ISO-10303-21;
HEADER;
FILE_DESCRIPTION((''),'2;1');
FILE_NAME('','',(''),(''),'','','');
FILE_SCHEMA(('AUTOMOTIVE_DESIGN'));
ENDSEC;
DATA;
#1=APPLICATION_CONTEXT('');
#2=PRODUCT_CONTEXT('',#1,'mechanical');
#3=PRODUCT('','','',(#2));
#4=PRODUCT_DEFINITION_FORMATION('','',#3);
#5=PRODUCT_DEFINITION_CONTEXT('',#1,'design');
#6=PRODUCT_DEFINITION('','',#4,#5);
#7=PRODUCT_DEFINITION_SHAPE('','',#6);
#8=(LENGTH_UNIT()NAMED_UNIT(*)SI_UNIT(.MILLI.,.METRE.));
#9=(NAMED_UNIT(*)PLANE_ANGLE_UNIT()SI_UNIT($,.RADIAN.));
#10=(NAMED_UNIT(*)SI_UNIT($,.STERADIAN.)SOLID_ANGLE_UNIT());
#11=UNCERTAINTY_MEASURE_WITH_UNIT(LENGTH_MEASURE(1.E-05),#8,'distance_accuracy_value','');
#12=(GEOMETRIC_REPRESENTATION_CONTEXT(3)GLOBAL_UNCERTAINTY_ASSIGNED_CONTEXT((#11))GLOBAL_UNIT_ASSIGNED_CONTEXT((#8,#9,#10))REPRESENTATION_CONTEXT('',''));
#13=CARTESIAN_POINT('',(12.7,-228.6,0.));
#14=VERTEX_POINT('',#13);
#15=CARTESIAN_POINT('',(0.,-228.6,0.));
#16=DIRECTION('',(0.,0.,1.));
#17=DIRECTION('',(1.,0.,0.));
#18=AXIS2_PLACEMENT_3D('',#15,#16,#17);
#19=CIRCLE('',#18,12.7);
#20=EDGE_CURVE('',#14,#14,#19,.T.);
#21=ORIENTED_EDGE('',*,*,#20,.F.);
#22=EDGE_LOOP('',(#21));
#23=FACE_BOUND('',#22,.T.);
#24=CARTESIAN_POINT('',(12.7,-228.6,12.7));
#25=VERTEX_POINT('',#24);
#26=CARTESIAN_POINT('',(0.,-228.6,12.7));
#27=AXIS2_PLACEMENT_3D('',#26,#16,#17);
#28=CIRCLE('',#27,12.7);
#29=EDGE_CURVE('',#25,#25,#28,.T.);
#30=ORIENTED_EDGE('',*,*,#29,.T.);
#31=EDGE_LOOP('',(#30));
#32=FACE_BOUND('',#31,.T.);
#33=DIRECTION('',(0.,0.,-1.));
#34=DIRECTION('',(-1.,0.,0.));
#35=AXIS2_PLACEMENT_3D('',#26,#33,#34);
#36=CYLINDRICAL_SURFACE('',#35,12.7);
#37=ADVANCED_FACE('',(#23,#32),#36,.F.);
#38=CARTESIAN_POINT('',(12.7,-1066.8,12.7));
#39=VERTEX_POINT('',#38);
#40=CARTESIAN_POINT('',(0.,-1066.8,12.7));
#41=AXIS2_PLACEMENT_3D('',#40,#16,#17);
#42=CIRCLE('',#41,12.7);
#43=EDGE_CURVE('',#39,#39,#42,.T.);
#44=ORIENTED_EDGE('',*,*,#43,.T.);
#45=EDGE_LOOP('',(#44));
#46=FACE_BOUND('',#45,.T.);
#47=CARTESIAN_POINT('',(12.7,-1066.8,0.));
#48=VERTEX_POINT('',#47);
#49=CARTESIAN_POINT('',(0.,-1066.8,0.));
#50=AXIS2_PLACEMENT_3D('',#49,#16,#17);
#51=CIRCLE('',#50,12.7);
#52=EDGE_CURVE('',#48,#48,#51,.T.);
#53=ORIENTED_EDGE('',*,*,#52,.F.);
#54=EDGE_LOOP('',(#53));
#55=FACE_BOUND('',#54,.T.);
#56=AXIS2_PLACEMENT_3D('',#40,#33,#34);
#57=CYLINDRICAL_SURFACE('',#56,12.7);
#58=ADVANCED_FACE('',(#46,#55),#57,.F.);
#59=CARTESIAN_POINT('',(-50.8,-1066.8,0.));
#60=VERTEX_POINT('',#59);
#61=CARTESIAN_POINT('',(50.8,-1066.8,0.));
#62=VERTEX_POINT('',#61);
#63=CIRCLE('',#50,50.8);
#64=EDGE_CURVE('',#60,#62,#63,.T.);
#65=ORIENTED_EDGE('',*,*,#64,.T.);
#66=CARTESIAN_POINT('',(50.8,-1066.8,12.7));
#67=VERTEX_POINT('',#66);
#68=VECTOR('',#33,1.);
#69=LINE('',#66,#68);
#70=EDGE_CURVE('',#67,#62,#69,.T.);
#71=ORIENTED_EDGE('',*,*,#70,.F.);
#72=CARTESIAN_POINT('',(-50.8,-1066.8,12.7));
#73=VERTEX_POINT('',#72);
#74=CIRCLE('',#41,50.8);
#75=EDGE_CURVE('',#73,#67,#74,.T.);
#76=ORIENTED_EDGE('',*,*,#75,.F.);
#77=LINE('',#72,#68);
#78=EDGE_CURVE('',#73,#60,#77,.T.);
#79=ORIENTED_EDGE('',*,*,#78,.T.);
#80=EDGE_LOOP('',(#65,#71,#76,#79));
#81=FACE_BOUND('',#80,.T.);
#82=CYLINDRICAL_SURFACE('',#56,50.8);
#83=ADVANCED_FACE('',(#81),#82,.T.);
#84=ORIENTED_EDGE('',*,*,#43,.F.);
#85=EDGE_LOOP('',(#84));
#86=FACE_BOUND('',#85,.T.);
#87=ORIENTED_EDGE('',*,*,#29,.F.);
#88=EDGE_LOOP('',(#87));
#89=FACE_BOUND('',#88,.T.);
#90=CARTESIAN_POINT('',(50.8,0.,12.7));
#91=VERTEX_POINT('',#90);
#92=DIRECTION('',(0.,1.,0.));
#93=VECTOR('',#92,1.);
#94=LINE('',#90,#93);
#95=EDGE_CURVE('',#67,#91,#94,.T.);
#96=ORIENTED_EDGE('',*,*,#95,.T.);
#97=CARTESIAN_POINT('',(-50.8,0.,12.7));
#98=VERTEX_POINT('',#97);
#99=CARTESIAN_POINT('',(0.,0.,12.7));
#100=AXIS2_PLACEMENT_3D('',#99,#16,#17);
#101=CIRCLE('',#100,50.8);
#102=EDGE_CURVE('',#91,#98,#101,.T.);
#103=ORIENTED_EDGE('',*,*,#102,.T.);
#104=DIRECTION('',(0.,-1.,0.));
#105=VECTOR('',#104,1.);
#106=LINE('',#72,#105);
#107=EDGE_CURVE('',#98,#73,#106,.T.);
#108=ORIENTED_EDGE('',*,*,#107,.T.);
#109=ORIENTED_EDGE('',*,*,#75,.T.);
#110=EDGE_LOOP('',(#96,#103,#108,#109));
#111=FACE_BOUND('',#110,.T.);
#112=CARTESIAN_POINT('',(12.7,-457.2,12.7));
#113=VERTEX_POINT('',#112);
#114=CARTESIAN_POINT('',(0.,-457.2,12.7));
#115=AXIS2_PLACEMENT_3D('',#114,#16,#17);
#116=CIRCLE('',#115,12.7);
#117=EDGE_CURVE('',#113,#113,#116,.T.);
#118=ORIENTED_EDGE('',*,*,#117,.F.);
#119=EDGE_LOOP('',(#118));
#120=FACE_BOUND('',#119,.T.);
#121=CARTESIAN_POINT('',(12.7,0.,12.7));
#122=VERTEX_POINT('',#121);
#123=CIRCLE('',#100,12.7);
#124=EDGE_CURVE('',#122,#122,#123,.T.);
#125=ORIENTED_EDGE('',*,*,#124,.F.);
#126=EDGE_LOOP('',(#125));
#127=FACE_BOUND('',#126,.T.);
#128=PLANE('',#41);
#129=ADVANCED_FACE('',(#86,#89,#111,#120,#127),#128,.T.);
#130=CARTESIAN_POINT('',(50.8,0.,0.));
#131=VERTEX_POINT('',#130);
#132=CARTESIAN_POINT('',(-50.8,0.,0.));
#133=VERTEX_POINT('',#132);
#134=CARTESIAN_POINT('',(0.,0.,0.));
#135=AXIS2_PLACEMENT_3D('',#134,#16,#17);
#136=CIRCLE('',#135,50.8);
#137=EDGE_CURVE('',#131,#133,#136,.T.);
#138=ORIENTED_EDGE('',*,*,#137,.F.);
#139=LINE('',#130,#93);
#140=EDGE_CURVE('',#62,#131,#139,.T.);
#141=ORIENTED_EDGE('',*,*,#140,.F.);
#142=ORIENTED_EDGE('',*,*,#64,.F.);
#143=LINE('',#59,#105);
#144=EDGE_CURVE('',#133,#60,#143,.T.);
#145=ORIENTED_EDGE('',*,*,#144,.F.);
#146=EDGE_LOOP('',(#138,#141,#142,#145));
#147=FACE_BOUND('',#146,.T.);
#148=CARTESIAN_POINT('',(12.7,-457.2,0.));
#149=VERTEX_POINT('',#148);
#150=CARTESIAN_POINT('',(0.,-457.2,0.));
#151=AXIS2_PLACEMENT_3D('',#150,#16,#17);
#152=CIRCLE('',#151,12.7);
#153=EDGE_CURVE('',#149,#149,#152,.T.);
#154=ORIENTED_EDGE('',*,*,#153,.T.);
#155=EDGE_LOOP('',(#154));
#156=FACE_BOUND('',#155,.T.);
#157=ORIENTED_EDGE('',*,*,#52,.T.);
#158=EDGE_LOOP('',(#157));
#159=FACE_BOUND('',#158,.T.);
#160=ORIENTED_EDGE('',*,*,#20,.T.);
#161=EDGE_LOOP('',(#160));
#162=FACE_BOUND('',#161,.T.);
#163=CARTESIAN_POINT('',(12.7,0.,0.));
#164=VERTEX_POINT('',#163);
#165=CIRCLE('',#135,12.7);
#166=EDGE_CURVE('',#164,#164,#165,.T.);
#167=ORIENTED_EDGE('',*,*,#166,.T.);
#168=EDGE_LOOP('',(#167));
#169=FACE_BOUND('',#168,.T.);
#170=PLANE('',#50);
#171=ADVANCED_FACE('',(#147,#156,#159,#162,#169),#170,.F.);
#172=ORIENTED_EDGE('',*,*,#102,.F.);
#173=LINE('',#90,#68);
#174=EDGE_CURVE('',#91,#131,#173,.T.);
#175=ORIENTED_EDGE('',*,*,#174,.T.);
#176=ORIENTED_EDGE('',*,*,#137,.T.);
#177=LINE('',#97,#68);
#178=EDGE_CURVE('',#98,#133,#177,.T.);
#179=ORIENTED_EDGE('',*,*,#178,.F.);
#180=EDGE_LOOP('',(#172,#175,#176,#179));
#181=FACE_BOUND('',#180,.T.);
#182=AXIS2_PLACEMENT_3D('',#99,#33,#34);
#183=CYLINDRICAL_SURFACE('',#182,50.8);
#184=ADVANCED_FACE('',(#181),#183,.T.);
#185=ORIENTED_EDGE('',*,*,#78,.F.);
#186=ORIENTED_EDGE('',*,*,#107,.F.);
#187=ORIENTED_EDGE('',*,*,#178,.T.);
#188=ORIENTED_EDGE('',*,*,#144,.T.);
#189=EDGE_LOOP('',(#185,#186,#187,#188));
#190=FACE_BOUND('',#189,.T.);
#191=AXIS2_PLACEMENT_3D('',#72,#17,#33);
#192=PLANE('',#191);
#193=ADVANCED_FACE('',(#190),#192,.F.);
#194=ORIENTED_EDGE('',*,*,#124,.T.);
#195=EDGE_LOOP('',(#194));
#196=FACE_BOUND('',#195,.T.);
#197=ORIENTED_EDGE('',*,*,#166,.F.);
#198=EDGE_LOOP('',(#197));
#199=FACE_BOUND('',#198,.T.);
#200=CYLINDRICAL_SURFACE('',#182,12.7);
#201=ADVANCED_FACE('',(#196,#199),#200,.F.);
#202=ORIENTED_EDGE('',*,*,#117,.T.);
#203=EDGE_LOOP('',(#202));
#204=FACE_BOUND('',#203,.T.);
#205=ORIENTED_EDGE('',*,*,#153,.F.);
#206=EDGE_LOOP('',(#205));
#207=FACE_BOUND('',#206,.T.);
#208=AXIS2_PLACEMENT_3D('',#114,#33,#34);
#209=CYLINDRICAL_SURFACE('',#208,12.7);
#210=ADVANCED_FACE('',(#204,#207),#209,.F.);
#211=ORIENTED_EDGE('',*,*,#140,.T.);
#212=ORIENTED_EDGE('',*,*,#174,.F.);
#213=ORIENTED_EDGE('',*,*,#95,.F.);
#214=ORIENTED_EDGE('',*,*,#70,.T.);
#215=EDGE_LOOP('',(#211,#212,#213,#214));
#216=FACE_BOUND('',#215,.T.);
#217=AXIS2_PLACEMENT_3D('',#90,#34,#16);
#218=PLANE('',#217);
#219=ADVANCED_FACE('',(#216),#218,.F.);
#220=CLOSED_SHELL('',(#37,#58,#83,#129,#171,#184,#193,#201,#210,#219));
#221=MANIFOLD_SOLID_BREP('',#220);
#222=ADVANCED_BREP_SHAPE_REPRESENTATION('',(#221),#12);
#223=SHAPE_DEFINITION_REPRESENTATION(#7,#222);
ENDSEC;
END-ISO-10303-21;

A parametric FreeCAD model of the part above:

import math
import FreeCAD as App
import Part
import Sketcher

V = App.Vector
Q = App.Units.Quantity

doc = App.newDocument("Part")
params = doc.addObject("Spreadsheet::Sheet", "Params")
for row, (alias, value) in enumerate([
    ("sketch1_diameter", "1 in"),
    ("sketch1_radius", "2 in"),
    ("sketch1_height", "42 in"),
    ("pad1_length", "0.5 in"),
], start=1):
    params.set(f"A{row}", alias)
    params.set(f"B{row}", "=" + value)
    params.setAlias(f"B{row}", alias)

body = doc.addObject("PartDesign::Body", "Body")

sketch1 = doc.addObject("Sketcher::SketchObject", "Sketch")
body.addObject(sketch1)
sketch1.AttachmentSupport = (doc.XY_Plane, [""])
sketch1.MapMode = "FlatFace"
sketch1.addGeometry([
    Part.LineSegment(V(-51, 0, 0), V(-51, -1067, 0)),
    Part.ArcOfCircle(Part.Circle(V(0, -1067, 0), V(0, 0, 1), 51), math.radians(180), math.radians(360)),
    Part.LineSegment(V(51, -1067, 0), V(51, 0, 0)),
    Part.ArcOfCircle(Part.Circle(V(0, 0, 0), V(0, 0, 1), 51), math.radians(0), math.radians(180)),
    Part.Circle(V(0, -1067, 0), V(0, 0, 1), 13),
    Part.Circle(V(0, -457, 0), V(0, 0, 1), 13),
    Part.Circle(V(0, -229, 0), V(0, 0, 1), 13),
    Part.Circle(V(0, 0, 0), V(0, 0, 1), 13),
], False)
sketch1.addConstraint([
    Sketcher.Constraint("Tangent", 0, 2, 1, 1),
    Sketcher.Constraint("Tangent", 1, 2, 2, 1),
    Sketcher.Constraint("Tangent", 2, 2, 3, 1),
    Sketcher.Constraint("Tangent", 3, 2, 0, 1),
    Sketcher.Constraint("Vertical", 0),
    Sketcher.Constraint("Vertical", 2),
    Sketcher.Constraint("Coincident", 3, 3, -1, 1),
    Sketcher.Constraint("Coincident", 7, 3, -1, 1),
    Sketcher.Constraint("Coincident", 4, 3, 1, 3),
    Sketcher.Constraint("Equal", 4, 5),
    Sketcher.Constraint("Equal", 5, 6),
    Sketcher.Constraint("Equal", 6, 7),
    Sketcher.Constraint("PointOnObject", 5, 3, -2),
    Sketcher.Constraint("PointOnObject", 6, 3, -2),
    Sketcher.Constraint("Diameter", 4, Q("1 in")),
    Sketcher.Constraint("Radius", 1, Q("2 in")),
    Sketcher.Constraint("DistanceY", 0, 2, 0, 1, Q("42 in")),
    Sketcher.Constraint("DistanceY", 5, 3, -1, 1, Q("18 in")),
    Sketcher.Constraint("DistanceY", 6, 3, -1, 1, Q("9 in")),
])
sketch1.setExpression("Constraints[14]", "Params.sketch1_diameter")
sketch1.setExpression("Constraints[15]", "Params.sketch1_radius")
sketch1.setExpression("Constraints[16]", "Params.sketch1_height")
pad1 = doc.addObject("PartDesign::Pad", "Pad")
body.addObject(pad1)
pad1.Profile = sketch1
pad1.setExpression("Length", "Params.pad1_length")

doc.recompute()
